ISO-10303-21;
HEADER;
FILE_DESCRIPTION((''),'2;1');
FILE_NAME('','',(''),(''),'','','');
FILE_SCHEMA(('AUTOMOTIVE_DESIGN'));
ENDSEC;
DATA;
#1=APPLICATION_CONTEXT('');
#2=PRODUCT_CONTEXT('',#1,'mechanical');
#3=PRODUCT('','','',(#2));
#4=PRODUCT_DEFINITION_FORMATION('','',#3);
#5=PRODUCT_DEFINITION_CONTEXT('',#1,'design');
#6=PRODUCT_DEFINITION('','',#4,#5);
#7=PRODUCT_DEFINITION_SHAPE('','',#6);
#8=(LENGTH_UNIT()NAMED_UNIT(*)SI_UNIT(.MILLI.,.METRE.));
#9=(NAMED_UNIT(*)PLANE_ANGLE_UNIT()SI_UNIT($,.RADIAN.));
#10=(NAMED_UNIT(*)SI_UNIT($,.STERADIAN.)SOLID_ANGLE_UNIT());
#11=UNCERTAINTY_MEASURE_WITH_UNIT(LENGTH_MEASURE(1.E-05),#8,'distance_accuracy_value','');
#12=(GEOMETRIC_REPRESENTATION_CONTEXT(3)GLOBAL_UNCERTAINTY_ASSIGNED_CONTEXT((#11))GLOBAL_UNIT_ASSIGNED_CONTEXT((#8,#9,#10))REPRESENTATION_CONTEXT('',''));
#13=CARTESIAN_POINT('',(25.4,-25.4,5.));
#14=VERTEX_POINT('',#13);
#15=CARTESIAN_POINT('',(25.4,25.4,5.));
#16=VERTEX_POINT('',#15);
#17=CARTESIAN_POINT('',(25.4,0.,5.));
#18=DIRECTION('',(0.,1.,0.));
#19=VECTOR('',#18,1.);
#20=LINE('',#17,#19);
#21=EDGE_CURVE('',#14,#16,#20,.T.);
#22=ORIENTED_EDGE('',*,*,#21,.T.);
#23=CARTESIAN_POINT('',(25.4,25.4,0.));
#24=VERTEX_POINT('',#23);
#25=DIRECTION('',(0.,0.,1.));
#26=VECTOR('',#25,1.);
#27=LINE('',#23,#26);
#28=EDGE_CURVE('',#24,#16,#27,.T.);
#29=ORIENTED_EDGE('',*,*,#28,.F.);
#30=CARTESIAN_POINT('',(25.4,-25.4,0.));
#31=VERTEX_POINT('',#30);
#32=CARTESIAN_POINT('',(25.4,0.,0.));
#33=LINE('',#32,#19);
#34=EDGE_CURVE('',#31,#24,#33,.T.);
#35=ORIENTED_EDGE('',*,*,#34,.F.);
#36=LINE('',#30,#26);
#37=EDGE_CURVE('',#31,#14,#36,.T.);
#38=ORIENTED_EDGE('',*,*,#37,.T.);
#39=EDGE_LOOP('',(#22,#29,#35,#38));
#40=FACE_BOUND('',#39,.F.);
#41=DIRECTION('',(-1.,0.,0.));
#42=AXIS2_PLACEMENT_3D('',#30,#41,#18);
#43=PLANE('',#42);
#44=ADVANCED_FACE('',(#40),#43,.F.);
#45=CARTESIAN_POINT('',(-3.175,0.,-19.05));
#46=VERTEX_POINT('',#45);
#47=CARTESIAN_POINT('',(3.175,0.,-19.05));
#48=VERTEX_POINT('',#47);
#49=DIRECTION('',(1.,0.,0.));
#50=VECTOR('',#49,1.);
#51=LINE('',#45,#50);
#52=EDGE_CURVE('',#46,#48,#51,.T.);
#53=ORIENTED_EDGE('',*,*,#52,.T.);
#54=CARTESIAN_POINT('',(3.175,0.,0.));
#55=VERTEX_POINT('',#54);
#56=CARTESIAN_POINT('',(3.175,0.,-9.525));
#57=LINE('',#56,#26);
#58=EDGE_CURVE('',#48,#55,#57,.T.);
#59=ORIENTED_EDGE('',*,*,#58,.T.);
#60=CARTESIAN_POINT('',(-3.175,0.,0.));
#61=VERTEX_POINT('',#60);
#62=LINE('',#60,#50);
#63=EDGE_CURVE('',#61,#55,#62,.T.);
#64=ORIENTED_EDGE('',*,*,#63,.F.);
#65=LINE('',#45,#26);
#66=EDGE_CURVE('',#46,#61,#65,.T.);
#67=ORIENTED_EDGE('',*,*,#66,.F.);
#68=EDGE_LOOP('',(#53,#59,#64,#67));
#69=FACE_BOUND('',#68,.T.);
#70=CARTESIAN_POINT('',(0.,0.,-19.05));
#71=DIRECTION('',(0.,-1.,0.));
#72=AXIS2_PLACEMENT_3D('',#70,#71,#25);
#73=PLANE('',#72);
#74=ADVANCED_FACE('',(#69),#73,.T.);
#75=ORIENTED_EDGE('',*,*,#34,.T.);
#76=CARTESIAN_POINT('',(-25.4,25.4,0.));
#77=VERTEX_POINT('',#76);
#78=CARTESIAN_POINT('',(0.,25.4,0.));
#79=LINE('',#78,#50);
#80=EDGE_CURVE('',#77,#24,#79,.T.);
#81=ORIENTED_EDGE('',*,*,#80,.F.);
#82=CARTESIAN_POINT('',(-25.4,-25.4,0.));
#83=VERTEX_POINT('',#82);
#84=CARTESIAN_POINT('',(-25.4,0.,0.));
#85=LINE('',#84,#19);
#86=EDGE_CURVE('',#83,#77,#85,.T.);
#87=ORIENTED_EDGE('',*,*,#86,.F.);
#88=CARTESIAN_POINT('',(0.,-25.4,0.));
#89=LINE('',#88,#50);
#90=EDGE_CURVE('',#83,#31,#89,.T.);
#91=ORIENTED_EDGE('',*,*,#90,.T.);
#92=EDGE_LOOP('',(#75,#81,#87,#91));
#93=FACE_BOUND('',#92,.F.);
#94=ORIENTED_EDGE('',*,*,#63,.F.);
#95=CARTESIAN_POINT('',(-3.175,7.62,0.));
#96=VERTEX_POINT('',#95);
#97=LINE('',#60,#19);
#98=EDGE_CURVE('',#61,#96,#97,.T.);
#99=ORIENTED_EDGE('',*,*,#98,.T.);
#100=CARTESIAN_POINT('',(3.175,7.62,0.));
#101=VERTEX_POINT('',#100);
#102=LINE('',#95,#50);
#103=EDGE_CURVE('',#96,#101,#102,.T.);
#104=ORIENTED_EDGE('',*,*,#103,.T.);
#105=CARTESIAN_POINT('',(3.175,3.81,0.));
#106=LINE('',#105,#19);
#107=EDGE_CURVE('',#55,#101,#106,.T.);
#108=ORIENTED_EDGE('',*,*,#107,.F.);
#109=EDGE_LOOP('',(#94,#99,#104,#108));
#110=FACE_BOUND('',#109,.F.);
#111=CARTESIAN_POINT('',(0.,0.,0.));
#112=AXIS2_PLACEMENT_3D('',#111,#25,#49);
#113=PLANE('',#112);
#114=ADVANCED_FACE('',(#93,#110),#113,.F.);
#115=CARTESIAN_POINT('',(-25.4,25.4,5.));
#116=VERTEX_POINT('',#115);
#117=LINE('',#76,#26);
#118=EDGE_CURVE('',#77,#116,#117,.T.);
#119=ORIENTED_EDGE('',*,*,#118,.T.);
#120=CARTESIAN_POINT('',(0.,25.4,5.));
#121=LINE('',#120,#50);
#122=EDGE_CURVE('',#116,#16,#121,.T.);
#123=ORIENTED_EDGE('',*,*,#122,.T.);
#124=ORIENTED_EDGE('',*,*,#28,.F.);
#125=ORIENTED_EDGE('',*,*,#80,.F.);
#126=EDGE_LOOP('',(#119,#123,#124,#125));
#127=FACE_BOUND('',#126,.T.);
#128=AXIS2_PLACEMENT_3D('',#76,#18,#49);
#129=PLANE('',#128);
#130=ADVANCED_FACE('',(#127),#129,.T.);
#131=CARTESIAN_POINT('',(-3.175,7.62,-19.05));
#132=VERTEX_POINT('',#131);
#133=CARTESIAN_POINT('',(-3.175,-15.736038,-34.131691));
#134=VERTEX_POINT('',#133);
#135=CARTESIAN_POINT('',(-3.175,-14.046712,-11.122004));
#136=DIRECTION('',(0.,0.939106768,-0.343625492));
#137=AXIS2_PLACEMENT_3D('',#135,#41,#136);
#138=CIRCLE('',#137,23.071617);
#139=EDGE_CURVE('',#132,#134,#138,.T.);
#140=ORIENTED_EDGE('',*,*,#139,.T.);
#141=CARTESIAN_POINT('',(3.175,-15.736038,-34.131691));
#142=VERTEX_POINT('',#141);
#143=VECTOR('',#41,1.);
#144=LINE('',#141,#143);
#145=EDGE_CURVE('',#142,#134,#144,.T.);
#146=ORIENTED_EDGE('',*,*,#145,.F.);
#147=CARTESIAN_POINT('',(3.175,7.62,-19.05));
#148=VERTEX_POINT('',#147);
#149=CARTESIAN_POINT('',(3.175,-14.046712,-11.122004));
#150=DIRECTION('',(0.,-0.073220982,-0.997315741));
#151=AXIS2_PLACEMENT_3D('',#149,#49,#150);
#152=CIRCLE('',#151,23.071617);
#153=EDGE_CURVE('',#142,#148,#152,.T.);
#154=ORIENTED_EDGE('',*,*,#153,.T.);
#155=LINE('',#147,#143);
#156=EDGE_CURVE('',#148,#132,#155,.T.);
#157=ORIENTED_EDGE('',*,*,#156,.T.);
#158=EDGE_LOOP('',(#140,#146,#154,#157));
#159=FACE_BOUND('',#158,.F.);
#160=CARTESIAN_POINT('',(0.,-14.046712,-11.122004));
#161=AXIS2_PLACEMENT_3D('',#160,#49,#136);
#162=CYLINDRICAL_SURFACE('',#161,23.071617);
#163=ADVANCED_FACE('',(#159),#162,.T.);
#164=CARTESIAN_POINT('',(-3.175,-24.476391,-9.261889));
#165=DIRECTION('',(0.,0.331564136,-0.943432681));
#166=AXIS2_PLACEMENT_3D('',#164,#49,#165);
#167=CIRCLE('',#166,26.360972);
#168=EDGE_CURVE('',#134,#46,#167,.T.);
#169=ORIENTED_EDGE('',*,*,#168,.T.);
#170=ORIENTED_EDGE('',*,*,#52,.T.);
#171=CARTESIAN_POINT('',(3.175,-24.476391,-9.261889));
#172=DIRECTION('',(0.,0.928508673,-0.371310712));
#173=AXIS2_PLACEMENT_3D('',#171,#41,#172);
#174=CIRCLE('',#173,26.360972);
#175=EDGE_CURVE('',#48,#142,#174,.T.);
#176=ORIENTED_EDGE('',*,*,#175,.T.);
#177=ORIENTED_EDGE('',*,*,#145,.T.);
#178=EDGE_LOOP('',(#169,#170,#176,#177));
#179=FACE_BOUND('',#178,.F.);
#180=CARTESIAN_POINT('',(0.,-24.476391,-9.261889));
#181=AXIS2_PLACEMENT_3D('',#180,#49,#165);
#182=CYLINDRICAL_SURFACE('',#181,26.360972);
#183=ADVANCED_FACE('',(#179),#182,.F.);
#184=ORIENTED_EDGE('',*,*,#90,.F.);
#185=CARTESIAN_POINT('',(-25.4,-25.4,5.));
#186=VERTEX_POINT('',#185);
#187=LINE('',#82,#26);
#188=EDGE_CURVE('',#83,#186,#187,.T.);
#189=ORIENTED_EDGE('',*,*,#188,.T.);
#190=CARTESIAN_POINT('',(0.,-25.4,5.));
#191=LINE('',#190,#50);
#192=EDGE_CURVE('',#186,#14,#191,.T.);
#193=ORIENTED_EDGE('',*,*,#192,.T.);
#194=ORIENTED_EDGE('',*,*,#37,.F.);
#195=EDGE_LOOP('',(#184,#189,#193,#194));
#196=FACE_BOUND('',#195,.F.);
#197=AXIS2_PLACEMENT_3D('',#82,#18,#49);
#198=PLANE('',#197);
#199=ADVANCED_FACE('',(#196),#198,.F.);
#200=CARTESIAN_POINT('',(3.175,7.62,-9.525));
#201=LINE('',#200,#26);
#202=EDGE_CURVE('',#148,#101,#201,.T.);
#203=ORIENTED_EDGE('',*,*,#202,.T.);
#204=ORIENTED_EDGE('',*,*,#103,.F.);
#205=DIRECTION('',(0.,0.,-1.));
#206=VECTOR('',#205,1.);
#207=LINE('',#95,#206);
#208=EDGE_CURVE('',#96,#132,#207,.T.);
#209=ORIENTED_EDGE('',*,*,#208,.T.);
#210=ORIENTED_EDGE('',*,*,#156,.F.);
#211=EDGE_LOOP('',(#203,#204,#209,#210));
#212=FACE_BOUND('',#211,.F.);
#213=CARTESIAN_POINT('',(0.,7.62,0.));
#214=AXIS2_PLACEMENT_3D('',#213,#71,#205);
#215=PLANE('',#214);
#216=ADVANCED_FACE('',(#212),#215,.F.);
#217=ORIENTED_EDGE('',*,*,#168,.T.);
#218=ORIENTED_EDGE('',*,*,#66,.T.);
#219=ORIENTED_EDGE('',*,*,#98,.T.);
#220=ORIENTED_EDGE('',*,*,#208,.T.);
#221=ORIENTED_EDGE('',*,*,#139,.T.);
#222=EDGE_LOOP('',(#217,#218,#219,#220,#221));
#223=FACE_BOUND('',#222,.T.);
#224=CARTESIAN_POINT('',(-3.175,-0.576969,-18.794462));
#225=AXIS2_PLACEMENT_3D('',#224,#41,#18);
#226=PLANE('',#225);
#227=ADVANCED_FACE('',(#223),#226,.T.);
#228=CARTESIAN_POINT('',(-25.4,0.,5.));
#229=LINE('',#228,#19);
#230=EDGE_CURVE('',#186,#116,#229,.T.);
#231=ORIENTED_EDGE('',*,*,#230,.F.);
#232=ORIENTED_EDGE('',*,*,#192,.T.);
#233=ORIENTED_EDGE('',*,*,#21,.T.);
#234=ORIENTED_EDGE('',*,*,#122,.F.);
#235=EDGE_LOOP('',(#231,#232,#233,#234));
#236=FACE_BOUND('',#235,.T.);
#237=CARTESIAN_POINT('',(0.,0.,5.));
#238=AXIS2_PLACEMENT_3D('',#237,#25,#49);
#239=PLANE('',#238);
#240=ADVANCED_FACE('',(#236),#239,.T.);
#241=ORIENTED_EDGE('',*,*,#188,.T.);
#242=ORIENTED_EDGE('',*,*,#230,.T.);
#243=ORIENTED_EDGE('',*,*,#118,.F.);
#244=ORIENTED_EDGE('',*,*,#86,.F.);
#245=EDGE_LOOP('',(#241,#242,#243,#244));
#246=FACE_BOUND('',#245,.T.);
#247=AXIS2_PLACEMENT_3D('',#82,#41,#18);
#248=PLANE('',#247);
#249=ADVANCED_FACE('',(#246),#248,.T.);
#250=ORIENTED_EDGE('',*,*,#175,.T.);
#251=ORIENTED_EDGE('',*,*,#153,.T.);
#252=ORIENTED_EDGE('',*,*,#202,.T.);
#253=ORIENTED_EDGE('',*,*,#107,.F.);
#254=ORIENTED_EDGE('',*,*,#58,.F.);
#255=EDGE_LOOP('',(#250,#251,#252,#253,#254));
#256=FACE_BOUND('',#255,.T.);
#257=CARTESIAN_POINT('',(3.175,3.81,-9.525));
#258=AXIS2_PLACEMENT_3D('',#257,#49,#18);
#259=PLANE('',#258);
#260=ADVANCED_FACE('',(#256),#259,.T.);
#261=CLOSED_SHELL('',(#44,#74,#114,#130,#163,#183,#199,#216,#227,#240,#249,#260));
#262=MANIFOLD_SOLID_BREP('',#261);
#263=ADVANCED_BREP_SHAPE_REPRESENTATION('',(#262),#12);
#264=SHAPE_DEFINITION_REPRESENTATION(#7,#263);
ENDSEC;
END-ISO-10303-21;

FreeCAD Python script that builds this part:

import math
import FreeCAD as App
import Part
import Sketcher

V = App.Vector
Q = App.Units.Quantity

doc = App.newDocument("Part")
body = doc.addObject("PartDesign::Body", "Body")

# Sketch on XY plane
sketch1 = body.newObject("Sketcher::SketchObject", "Sketch")
sketch1.AttachmentSupport = (doc.getObject("XY_Plane"), [""])
sketch1.MapMode = "FlatFace"
sketch1.addGeometry([
    Part.LineSegment(V(-25, 25, 0), V(-25, -25, 0)),
    Part.LineSegment(V(-25, -25, 0), V(25, -25, 0)),
    Part.LineSegment(V(25, -25, 0), V(25, 25, 0)),
    Part.LineSegment(V(25, 25, 0), V(-25, 25, 0)),
], False)
sketch1.addConstraint([
    Sketcher.Constraint("Coincident", 0, 2, 1, 1),
    Sketcher.Constraint("Coincident", 1, 2, 2, 1),
    Sketcher.Constraint("Coincident", 2, 2, 3, 1),
    Sketcher.Constraint("Coincident", 3, 2, 0, 1),
    Sketcher.Constraint("Vertical", 0),
    Sketcher.Constraint("Horizontal", 1),
    Sketcher.Constraint("Vertical", 2),
    Sketcher.Constraint("Horizontal", 3),
    Sketcher.Constraint("Symmetric", 0, 2, 2, 2, -1, 1),
    Sketcher.Constraint("Equal", 3, 0),
    Sketcher.Constraint("DistanceX", 1, 1, 1, 2, Q("2 in")),
])
pad1 = body.newObject("PartDesign::Pad", "Pad")
pad1.Profile = sketch1
pad1.Length = 5

# Sketch on YZ plane
sketch2 = body.newObject("Sketcher::SketchObject", "Sketch001")
sketch2.AttachmentSupport = (doc.getObject("YZ_Plane"), [""])
sketch2.MapMode = "FlatFace"
sketch2.addGeometry([
    Part.LineSegment(V(0, 0, 0), V(0, -19, 0)),  # 0
    Part.ArcOfCircle(Part.Circle(V(-24, -9, 0), V(0, 0, 1), 26), math.radians(-71), math.radians(-22)),  # 1
    Part.ArcOfCircle(Part.Circle(V(-14, -11, 0), V(0, 0, 1), 23), math.radians(-94), math.radians(-20)),  # 2
    Part.LineSegment(V(8, -19, 0), V(8, 0, 0)),  # 3
    Part.LineSegment(V(8, 0, 0), V(0, 0, 0)),  # 4
], False)
sketch2.addConstraint([
    Sketcher.Constraint("Coincident", 0, 2, 1, 2),
    Sketcher.Constraint("Coincident", 1, 1, 2, 1),
    Sketcher.Constraint("Coincident", 2, 2, 3, 1),
    Sketcher.Constraint("Coincident", 3, 2, 4, 1),
    Sketcher.Constraint("Coincident", 4, 2, 0, 1),
    Sketcher.Constraint("Vertical", 0),
    Sketcher.Constraint("Vertical", 3),
    Sketcher.Constraint("Horizontal", 4),
    Sketcher.Constraint("Coincident", 4, 2, -1, 1),
    Sketcher.Constraint("Horizontal", 0, 2, 2, 2),
    Sketcher.Constraint("DistanceX", 4, 2, 4, 1, Q("0.3 in")),
    Sketcher.Constraint("DistanceY", 0, 2, 0, 1, Q("0.75 in")),
    Sketcher.Constraint("Radius", 1, Q("26.360972 mm")),
    Sketcher.Constraint("Radius", 2, Q("23.071617 mm")),
    Sketcher.Constraint("DistanceX", 1, 3, -1, 1, Q("24.476391 mm")),
    Sketcher.Constraint("DistanceX", 2, 3, -1, 1, Q("14.046712 mm")),
])
pad2 = body.newObject("PartDesign::Pad", "Pad001")
pad2.Profile = sketch2
pad2.Length = Q("0.125 in")

# Sketch on YZ plane
sketch3 = body.newObject("Sketcher::SketchObject", "Sketch002")
sketch3.AttachmentSupport = (doc.getObject("YZ_Plane"), [""])
sketch3.MapMode = "FlatFace"
sketch3.addGeometry([
    Part.LineSegment(V(0, 0, 0), V(8, 0, 0)),  # 0
    Part.LineSegment(V(8, 0, 0), V(8, -19, 0)),  # 1
    Part.ArcOfCircle(Part.Circle(V(-14, -11, 0), V(0, 0, 1), 23), math.radians(-94), math.radians(-20)),  # 2
    Part.ArcOfCircle(Part.Circle(V(-24, -9, 0), V(0, 0, 1), 26), math.radians(-71), math.radians(-22)),  # 3
    Part.LineSegment(V(0, -19, 0), V(0, 0, 0)),  # 4
], False)
sketch3.addConstraint([
    Sketcher.Constraint("Coincident", 0, 2, 1, 1),
    Sketcher.Constraint("Coincident", 1, 2, 2, 2),
    Sketcher.Constraint("Coincident", 2, 1, 3, 1),
    Sketcher.Constraint("Coincident", 3, 2, 4, 1),
    Sketcher.Constraint("Coincident", 4, 2, 0, 1),
    Sketcher.Constraint("Horizontal", 0),
    Sketcher.Constraint("Vertical", 1),
    Sketcher.Constraint("Vertical", 4),
    Sketcher.Constraint("Coincident", 4, 2, -1, 1),
    Sketcher.Constraint("Horizontal", 1, 2, 3, 2),
    Sketcher.Constraint("DistanceX", 0, 1, 0, 2, Q("0.3 in")),
    Sketcher.Constraint("DistanceY", 1, 2, 1, 1, Q("0.75 in")),
    Sketcher.Constraint("Radius", 3, Q("26.360972 mm")),
    Sketcher.Constraint("Radius", 2, Q("23.071617 mm")),
    Sketcher.Constraint("DistanceX", 2, 3, -1, 1, Q("14.046712 mm")),
    Sketcher.Constraint("DistanceX", 3, 3, -1, 1, Q("24.476391 mm")),
])
pad3 = body.newObject("PartDesign::Pad", "Pad002")
pad3.Profile = sketch3
pad3.Length = Q("0.125 in")
pad3.Reversed = True

doc.recompute()
